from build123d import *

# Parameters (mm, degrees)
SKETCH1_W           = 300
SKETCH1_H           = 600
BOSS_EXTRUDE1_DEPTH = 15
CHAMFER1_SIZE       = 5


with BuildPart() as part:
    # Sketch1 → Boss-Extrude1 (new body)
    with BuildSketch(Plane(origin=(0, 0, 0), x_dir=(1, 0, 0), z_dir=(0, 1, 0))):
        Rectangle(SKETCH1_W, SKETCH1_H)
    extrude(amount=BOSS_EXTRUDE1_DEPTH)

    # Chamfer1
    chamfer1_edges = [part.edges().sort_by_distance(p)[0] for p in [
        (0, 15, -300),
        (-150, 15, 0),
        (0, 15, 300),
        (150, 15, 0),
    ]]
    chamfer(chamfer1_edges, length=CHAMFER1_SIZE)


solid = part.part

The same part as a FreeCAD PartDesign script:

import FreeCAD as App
import Part
import Sketcher

V = App.Vector


def edges_at(feature, points):
    """Names of the edges that pass closest to the given points."""
    edges = feature.Shape.Edges
    near = lambda p: min(range(len(edges)), key=lambda i: edges[i].distToShape(Part.Vertex(*p))[0])
    return sorted({f"Edge{near(p) + 1}" for p in points})

doc = App.newDocument("Part")
body = doc.addObject("PartDesign::Body", "Body")

# Sketch on XZ plane
sketch1 = body.newObject("Sketcher::SketchObject", "Sketch")
sketch1.AttachmentSupport = (doc.getObject("XZ_Plane"), [""])
sketch1.MapMode = "FlatFace"
sketch1.addGeometry(Part.LineSegment(V(-150, -300, 0), V(-150, 300, 0)), False)
sketch1.addGeometry(Part.LineSegment(V(-150, 300, 0), V(150, 300, 0)), False)
sketch1.addGeometry(Part.LineSegment(V(150, 300, 0), V(150, -300, 0)), False)
sketch1.addGeometry(Part.LineSegment(V(150, -300, 0), V(-150, -300, 0)), False)
sketch1.addConstraint(Sketcher.Constraint("Coincident", 0, 2, 1, 1))
sketch1.addConstraint(Sketcher.Constraint("Coincident", 1, 2, 2, 1))
sketch1.addConstraint(Sketcher.Constraint("Coincident", 2, 2, 3, 1))
sketch1.addConstraint(Sketcher.Constraint("Coincident", 3, 2, 0, 1))
sketch1.addConstraint(Sketcher.Constraint("Vertical", 0))
sketch1.addConstraint(Sketcher.Constraint("Horizontal", 1))
sketch1.addConstraint(Sketcher.Constraint("Vertical", 2))
sketch1.addConstraint(Sketcher.Constraint("Horizontal", 3))
sketch1.addConstraint(Sketcher.Constraint("Symmetric", 0, 2, 2, 2, -1, 1))
sketch1.addConstraint(Sketcher.Constraint("DistanceX", 1, 1, 1, 2, 300.0))
sketch1.addConstraint(Sketcher.Constraint("DistanceY", 0, 1, 0, 2, 600.0))
pad1 = body.newObject("PartDesign::Pad", "Pad")
pad1.Profile = sketch1
pad1.Length = 15
pad1.Reversed = True
doc.recompute()

chamfer = body.newObject("PartDesign::Chamfer", "Chamfer")
chamfer.Base = (pad1, edges_at(pad1, [
    (0, 15, -300),
    (-150, 15, 0),
    (0, 15, 300),
    (150, 15, 0),
]))
chamfer.Size = 5

doc.recompute()
